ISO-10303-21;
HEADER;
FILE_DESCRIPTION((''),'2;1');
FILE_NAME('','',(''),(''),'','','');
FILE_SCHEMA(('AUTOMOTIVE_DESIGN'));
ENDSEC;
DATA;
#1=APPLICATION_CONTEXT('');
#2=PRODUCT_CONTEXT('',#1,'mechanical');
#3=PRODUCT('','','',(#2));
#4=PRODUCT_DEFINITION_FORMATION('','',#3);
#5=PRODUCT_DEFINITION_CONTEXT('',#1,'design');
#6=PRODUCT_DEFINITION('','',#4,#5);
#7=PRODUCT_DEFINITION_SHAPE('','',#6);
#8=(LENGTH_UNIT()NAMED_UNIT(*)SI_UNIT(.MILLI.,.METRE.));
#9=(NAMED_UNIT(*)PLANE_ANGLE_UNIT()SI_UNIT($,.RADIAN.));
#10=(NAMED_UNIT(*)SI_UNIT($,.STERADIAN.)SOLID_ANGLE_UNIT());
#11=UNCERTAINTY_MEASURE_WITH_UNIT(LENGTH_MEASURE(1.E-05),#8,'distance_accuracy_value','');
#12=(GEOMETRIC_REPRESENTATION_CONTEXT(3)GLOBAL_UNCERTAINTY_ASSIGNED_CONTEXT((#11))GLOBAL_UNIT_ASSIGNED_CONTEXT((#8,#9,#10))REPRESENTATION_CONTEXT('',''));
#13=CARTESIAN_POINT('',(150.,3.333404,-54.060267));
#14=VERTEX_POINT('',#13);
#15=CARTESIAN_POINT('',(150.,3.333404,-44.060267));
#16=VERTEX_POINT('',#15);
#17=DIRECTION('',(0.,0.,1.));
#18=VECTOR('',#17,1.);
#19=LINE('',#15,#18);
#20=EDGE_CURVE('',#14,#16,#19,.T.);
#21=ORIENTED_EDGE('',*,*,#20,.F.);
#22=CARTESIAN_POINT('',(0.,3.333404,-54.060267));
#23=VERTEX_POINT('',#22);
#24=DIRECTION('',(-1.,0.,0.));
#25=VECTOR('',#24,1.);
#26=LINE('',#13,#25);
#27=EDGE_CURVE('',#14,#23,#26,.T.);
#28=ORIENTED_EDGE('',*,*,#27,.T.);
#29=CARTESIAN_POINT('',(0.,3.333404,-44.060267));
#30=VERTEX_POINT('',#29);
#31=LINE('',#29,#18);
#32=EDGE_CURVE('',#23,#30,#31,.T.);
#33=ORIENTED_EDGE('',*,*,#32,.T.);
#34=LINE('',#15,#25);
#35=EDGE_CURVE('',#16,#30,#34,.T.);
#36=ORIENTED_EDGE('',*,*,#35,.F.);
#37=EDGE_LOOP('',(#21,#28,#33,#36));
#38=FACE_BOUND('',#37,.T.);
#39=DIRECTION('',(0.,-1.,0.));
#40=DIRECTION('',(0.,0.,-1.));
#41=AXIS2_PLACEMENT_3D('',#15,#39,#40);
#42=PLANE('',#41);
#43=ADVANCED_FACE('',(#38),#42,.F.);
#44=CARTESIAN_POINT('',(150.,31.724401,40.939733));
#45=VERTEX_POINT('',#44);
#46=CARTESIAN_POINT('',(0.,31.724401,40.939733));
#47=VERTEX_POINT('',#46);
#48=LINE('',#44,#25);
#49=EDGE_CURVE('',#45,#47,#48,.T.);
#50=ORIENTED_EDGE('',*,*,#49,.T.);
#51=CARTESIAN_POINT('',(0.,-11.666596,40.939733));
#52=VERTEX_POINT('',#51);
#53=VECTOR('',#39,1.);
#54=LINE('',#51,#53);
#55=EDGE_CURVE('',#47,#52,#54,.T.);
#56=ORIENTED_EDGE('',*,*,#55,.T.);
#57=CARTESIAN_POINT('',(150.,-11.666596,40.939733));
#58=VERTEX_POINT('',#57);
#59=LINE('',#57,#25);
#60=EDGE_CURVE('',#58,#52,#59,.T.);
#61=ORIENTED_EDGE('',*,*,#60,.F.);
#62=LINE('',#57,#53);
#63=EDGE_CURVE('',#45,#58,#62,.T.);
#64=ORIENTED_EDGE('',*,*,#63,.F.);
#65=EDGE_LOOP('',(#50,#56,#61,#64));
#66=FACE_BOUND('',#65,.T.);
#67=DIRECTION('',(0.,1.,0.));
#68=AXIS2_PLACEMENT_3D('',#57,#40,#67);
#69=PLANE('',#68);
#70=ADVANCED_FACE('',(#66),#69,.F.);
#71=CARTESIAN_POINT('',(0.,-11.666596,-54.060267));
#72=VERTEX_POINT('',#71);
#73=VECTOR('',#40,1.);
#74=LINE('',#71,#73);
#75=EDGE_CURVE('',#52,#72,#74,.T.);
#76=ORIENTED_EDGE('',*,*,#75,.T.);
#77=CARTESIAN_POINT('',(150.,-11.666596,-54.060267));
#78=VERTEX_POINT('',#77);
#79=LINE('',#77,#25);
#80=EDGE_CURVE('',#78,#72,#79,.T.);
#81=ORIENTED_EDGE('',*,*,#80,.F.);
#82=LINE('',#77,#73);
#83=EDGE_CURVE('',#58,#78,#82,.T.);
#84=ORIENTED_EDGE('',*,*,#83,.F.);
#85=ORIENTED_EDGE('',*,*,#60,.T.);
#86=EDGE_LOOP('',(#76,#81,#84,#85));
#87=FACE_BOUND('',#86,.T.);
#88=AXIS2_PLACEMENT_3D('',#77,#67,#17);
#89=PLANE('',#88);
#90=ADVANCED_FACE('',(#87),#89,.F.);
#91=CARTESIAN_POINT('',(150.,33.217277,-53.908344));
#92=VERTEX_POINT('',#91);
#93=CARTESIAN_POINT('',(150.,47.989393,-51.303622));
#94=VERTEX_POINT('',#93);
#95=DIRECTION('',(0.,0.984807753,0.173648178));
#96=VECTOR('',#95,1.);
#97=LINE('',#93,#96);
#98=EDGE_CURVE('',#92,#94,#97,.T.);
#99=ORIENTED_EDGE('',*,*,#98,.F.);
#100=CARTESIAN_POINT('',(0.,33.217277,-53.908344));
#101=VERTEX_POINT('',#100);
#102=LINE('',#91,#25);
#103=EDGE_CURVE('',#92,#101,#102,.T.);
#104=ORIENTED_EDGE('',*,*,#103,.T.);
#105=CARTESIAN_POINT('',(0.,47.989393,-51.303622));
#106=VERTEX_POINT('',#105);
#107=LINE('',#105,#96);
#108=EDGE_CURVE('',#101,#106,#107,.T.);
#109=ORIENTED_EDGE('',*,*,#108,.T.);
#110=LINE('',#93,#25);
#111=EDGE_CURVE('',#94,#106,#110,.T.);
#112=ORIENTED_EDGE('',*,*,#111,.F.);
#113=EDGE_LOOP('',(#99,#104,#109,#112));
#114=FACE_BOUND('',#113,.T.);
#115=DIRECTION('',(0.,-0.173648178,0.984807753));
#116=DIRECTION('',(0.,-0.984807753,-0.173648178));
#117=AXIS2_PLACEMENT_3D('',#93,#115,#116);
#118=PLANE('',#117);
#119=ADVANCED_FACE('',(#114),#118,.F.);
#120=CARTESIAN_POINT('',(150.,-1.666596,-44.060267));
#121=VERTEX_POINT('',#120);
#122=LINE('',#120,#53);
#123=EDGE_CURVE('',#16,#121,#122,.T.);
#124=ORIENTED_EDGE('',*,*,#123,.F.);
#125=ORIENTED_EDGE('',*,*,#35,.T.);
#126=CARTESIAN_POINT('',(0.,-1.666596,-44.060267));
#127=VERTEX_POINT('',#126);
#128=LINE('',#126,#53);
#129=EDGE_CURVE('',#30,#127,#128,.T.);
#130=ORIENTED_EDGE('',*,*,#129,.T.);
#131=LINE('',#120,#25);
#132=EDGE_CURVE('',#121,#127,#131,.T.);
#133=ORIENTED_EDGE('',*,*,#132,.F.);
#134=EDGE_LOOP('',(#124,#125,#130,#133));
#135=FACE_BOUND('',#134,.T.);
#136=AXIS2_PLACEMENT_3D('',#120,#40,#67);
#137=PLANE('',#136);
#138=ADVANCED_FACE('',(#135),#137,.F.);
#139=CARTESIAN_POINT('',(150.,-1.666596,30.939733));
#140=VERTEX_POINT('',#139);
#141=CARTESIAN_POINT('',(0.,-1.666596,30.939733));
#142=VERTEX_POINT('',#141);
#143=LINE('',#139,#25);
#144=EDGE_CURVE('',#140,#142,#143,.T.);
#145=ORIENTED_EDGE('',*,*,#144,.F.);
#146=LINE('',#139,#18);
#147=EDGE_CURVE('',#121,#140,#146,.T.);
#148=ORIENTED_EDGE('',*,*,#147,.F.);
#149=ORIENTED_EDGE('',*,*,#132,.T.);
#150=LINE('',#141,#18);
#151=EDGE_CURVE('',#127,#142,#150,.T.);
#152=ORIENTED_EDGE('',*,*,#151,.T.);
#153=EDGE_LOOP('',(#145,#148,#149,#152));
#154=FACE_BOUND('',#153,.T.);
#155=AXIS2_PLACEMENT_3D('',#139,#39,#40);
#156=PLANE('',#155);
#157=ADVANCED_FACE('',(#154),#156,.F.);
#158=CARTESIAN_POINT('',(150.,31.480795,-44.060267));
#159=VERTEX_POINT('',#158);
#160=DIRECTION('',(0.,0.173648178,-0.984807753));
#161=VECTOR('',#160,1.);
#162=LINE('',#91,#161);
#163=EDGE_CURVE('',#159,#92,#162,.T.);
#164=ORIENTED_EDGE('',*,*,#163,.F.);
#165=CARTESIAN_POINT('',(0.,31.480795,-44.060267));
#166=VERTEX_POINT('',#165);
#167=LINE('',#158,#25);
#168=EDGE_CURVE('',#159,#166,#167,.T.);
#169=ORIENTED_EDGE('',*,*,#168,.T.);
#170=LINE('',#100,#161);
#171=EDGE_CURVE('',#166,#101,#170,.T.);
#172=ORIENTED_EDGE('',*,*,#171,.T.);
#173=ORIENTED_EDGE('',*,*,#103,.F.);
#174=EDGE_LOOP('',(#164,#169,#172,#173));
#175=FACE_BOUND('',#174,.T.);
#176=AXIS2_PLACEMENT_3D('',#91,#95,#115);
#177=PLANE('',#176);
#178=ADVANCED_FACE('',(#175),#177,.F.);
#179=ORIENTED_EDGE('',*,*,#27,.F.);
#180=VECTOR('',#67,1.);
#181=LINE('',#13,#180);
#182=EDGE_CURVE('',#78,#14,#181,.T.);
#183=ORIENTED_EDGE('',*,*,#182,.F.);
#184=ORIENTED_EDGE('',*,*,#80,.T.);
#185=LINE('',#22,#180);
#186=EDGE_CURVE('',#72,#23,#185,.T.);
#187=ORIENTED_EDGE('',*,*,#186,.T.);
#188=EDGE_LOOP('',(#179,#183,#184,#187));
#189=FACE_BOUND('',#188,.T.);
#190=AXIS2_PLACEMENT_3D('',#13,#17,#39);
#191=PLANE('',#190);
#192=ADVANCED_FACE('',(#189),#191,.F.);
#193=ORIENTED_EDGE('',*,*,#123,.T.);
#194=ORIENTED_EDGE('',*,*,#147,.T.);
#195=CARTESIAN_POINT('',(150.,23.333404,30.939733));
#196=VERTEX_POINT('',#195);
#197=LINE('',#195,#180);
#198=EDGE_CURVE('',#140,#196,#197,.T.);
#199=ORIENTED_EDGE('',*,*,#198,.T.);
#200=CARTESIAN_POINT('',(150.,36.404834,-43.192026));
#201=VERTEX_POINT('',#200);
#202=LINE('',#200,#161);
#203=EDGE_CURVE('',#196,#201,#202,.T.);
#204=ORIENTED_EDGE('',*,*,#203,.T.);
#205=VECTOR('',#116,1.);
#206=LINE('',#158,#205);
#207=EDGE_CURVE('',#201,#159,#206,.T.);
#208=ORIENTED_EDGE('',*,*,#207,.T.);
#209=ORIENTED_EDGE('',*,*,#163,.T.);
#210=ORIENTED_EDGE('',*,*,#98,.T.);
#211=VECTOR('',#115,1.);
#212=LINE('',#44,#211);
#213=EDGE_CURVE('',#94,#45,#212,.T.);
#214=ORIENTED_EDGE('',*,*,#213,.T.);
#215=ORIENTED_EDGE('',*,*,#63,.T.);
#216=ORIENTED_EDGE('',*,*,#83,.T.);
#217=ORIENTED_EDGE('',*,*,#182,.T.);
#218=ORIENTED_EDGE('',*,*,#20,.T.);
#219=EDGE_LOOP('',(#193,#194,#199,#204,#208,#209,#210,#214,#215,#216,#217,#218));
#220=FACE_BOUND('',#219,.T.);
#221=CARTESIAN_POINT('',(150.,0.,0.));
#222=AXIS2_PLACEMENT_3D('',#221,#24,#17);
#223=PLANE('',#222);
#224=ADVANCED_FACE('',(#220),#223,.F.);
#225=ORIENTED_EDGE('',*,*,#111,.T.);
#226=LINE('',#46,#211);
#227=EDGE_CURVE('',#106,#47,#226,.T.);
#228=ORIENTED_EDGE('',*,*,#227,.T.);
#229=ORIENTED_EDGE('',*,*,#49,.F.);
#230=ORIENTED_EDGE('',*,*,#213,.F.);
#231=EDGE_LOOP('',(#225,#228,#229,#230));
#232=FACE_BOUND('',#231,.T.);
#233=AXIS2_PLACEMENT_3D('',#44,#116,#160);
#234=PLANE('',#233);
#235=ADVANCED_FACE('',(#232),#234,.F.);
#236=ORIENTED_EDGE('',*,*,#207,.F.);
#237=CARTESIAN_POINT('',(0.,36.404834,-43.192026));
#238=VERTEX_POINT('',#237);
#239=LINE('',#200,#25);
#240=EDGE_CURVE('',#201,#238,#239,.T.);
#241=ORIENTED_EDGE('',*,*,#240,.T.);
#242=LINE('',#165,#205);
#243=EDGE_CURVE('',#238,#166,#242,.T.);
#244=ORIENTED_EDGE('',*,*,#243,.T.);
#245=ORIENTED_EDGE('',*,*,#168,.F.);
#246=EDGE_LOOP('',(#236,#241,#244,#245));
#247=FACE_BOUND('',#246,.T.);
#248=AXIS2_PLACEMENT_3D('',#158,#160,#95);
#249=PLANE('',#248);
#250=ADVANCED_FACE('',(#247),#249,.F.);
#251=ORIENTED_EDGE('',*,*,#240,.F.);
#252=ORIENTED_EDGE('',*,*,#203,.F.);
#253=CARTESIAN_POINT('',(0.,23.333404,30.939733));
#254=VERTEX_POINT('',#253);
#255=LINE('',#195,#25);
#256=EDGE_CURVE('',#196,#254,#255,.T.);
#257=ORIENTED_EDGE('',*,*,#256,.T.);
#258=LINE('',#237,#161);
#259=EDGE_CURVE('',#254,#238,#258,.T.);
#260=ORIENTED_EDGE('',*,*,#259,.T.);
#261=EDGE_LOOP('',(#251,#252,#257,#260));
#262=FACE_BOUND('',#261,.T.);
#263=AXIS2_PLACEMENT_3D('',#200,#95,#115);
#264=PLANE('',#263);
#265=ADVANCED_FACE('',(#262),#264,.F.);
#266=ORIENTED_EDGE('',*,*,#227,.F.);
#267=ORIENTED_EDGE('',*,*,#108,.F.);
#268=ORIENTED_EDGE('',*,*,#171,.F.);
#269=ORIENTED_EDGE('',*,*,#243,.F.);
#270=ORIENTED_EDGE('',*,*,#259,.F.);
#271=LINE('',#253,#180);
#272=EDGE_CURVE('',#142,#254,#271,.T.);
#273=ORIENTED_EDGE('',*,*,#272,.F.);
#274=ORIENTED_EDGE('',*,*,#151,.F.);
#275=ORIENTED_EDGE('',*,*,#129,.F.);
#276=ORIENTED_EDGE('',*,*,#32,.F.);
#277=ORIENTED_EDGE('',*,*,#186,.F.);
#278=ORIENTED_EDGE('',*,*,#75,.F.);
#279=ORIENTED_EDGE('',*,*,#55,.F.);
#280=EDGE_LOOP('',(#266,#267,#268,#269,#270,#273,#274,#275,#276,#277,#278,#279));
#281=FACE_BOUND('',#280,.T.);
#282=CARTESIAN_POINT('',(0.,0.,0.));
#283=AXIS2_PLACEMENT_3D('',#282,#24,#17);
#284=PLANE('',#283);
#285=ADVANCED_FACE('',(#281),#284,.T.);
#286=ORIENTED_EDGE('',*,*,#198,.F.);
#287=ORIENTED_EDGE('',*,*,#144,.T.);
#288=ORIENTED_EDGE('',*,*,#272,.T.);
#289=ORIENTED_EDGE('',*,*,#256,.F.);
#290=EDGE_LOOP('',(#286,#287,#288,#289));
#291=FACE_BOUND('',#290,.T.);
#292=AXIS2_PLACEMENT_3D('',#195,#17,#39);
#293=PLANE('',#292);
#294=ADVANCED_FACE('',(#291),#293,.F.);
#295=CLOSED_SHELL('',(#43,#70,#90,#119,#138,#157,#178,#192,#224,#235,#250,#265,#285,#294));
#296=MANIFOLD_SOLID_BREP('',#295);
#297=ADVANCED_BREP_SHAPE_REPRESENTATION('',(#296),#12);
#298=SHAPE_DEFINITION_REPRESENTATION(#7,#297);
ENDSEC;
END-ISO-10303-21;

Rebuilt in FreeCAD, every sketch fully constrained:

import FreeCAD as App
import Part
import Sketcher
from FreeCAD import Vector
Q = App.Units.Quantity

doc = App.newDocument("Part")
body = doc.addObject("PartDesign::Body", "Body")

# Sketch on YZ plane
sketch1 = body.newObject("Sketcher::SketchObject", "Sketch")
sketch1.AttachmentSupport = (doc.getObject("YZ_Plane"), [""])
sketch1.MapMode = "FlatFace"
sketch1.addGeometry(Part.LineSegment(Vector(-11.666596, -54.060267, 0), Vector(3.333404, -54.060267, 0)), False)
sketch1.addGeometry(Part.LineSegment(Vector(3.333404, -54.060267, 0), Vector(3.333404, -44.060267, 0)), False)
sketch1.addGeometry(Part.LineSegment(Vector(3.333404, -44.060267, 0), Vector(-1.666596, -44.060267, 0)), False)
sketch1.addGeometry(Part.LineSegment(Vector(-1.666596, -44.060267, 0), Vector(-1.666596, 30.939733, 0)), False)
sketch1.addGeometry(Part.LineSegment(Vector(-1.666596, 30.939733, 0), Vector(23.333404, 30.939733, 0)), False)
sketch1.addGeometry(Part.LineSegment(Vector(23.333404, 30.939733, 0), Vector(36.404834, -43.192026, 0)), False)
sketch1.addGeometry(Part.LineSegment(Vector(36.404834, -43.192026, 0), Vector(31.480795, -44.060267, 0)), False)
sketch1.addGeometry(Part.LineSegment(Vector(31.480795, -44.060267, 0), Vector(33.217277, -53.908344, 0)), False)
sketch1.addGeometry(Part.LineSegment(Vector(33.217277, -53.908344, 0), Vector(47.989393, -51.303622, 0)), False)
sketch1.addGeometry(Part.LineSegment(Vector(47.989393, -51.303622, 0), Vector(31.724401, 40.939733, 0)), False)
sketch1.addGeometry(Part.LineSegment(Vector(31.724401, 40.939733, 0), Vector(-11.666596, 40.939733, 0)), False)
sketch1.addGeometry(Part.LineSegment(Vector(-11.666596, 40.939733, 0), Vector(-11.666596, -54.060267, 0)), False)
sketch1.addConstraint(Sketcher.Constraint("Coincident", 0, 2, 1, 1))
sketch1.addConstraint(Sketcher.Constraint("Coincident", 1, 2, 2, 1))
sketch1.addConstraint(Sketcher.Constraint("Coincident", 2, 2, 3, 1))
sketch1.addConstraint(Sketcher.Constraint("Coincident", 3, 2, 4, 1))
sketch1.addConstraint(Sketcher.Constraint("Coincident", 4, 2, 5, 1))
sketch1.addConstraint(Sketcher.Constraint("Coincident", 5, 2, 6, 1))
sketch1.addConstraint(Sketcher.Constraint("Coincident", 6, 2, 7, 1))
sketch1.addConstraint(Sketcher.Constraint("Coincident", 7, 2, 8, 1))
sketch1.addConstraint(Sketcher.Constraint("Coincident", 8, 2, 9, 1))
sketch1.addConstraint(Sketcher.Constraint("Coincident", 9, 2, 10, 1))
sketch1.addConstraint(Sketcher.Constraint("Coincident", 10, 2, 11, 1))
sketch1.addConstraint(Sketcher.Constraint("Coincident", 11, 2, 0, 1))
sketch1.addConstraint(Sketcher.Constraint("Horizontal", 0))
sketch1.addConstraint(Sketcher.Constraint("Vertical", 1))
sketch1.addConstraint(Sketcher.Constraint("Horizontal", 2))
sketch1.addConstraint(Sketcher.Constraint("Vertical", 3))
sketch1.addConstraint(Sketcher.Constraint("Horizontal", 4))
sketch1.addConstraint(Sketcher.Constraint("Horizontal", 10))
sketch1.addConstraint(Sketcher.Constraint("Vertical", 11))
sketch1.addConstraint(Sketcher.Constraint("Perpendicular", 5, 6))
sketch1.addConstraint(Sketcher.Constraint("Perpendicular", 6, 7))
sketch1.addConstraint(Sketcher.Constraint("Perpendicular", 7, 8))
sketch1.addConstraint(Sketcher.Constraint("Perpendicular", 8, 9))
sketch1.addConstraint(Sketcher.Constraint("Horizontal", 2, 2, 6, 2))
sketch1.addConstraint(Sketcher.Constraint("DistanceX", 0, 1, 0, 2, 15.0))
sketch1.addConstraint(Sketcher.Constraint("DistanceX", 2, 2, 2, 1, 5.0))
sketch1.addConstraint(Sketcher.Constraint("DistanceX", 4, 1, 4, 2, 25.0))
sketch1.addConstraint(Sketcher.Constraint("DistanceY", 1, 1, 1, 2, 10.0))
sketch1.addConstraint(Sketcher.Constraint("DistanceY", 3, 1, 3, 2, 75.0))
sketch1.addConstraint(Sketcher.Constraint("DistanceY", 11, 2, 11, 1, 95.0))
sketch1.addConstraint(Sketcher.Constraint("Angle", 5, Q("-80 deg")))
sketch1.addConstraint(Sketcher.Constraint("Distance", 6, 5.0))
sketch1.addConstraint(Sketcher.Constraint("Distance", 7, 10.0))
sketch1.addConstraint(Sketcher.Constraint("Distance", 8, 15.0))
sketch1.addConstraint(Sketcher.Constraint("DistanceX", -1, 1, 9, 2, 31.724401))
sketch1.addConstraint(Sketcher.Constraint("DistanceY", 8, 2, -1, 1, 51.303622))
pad1 = body.newObject("PartDesign::Pad", "Pad")
pad1.Profile = sketch1
pad1.Length = 150

doc.recompute()
